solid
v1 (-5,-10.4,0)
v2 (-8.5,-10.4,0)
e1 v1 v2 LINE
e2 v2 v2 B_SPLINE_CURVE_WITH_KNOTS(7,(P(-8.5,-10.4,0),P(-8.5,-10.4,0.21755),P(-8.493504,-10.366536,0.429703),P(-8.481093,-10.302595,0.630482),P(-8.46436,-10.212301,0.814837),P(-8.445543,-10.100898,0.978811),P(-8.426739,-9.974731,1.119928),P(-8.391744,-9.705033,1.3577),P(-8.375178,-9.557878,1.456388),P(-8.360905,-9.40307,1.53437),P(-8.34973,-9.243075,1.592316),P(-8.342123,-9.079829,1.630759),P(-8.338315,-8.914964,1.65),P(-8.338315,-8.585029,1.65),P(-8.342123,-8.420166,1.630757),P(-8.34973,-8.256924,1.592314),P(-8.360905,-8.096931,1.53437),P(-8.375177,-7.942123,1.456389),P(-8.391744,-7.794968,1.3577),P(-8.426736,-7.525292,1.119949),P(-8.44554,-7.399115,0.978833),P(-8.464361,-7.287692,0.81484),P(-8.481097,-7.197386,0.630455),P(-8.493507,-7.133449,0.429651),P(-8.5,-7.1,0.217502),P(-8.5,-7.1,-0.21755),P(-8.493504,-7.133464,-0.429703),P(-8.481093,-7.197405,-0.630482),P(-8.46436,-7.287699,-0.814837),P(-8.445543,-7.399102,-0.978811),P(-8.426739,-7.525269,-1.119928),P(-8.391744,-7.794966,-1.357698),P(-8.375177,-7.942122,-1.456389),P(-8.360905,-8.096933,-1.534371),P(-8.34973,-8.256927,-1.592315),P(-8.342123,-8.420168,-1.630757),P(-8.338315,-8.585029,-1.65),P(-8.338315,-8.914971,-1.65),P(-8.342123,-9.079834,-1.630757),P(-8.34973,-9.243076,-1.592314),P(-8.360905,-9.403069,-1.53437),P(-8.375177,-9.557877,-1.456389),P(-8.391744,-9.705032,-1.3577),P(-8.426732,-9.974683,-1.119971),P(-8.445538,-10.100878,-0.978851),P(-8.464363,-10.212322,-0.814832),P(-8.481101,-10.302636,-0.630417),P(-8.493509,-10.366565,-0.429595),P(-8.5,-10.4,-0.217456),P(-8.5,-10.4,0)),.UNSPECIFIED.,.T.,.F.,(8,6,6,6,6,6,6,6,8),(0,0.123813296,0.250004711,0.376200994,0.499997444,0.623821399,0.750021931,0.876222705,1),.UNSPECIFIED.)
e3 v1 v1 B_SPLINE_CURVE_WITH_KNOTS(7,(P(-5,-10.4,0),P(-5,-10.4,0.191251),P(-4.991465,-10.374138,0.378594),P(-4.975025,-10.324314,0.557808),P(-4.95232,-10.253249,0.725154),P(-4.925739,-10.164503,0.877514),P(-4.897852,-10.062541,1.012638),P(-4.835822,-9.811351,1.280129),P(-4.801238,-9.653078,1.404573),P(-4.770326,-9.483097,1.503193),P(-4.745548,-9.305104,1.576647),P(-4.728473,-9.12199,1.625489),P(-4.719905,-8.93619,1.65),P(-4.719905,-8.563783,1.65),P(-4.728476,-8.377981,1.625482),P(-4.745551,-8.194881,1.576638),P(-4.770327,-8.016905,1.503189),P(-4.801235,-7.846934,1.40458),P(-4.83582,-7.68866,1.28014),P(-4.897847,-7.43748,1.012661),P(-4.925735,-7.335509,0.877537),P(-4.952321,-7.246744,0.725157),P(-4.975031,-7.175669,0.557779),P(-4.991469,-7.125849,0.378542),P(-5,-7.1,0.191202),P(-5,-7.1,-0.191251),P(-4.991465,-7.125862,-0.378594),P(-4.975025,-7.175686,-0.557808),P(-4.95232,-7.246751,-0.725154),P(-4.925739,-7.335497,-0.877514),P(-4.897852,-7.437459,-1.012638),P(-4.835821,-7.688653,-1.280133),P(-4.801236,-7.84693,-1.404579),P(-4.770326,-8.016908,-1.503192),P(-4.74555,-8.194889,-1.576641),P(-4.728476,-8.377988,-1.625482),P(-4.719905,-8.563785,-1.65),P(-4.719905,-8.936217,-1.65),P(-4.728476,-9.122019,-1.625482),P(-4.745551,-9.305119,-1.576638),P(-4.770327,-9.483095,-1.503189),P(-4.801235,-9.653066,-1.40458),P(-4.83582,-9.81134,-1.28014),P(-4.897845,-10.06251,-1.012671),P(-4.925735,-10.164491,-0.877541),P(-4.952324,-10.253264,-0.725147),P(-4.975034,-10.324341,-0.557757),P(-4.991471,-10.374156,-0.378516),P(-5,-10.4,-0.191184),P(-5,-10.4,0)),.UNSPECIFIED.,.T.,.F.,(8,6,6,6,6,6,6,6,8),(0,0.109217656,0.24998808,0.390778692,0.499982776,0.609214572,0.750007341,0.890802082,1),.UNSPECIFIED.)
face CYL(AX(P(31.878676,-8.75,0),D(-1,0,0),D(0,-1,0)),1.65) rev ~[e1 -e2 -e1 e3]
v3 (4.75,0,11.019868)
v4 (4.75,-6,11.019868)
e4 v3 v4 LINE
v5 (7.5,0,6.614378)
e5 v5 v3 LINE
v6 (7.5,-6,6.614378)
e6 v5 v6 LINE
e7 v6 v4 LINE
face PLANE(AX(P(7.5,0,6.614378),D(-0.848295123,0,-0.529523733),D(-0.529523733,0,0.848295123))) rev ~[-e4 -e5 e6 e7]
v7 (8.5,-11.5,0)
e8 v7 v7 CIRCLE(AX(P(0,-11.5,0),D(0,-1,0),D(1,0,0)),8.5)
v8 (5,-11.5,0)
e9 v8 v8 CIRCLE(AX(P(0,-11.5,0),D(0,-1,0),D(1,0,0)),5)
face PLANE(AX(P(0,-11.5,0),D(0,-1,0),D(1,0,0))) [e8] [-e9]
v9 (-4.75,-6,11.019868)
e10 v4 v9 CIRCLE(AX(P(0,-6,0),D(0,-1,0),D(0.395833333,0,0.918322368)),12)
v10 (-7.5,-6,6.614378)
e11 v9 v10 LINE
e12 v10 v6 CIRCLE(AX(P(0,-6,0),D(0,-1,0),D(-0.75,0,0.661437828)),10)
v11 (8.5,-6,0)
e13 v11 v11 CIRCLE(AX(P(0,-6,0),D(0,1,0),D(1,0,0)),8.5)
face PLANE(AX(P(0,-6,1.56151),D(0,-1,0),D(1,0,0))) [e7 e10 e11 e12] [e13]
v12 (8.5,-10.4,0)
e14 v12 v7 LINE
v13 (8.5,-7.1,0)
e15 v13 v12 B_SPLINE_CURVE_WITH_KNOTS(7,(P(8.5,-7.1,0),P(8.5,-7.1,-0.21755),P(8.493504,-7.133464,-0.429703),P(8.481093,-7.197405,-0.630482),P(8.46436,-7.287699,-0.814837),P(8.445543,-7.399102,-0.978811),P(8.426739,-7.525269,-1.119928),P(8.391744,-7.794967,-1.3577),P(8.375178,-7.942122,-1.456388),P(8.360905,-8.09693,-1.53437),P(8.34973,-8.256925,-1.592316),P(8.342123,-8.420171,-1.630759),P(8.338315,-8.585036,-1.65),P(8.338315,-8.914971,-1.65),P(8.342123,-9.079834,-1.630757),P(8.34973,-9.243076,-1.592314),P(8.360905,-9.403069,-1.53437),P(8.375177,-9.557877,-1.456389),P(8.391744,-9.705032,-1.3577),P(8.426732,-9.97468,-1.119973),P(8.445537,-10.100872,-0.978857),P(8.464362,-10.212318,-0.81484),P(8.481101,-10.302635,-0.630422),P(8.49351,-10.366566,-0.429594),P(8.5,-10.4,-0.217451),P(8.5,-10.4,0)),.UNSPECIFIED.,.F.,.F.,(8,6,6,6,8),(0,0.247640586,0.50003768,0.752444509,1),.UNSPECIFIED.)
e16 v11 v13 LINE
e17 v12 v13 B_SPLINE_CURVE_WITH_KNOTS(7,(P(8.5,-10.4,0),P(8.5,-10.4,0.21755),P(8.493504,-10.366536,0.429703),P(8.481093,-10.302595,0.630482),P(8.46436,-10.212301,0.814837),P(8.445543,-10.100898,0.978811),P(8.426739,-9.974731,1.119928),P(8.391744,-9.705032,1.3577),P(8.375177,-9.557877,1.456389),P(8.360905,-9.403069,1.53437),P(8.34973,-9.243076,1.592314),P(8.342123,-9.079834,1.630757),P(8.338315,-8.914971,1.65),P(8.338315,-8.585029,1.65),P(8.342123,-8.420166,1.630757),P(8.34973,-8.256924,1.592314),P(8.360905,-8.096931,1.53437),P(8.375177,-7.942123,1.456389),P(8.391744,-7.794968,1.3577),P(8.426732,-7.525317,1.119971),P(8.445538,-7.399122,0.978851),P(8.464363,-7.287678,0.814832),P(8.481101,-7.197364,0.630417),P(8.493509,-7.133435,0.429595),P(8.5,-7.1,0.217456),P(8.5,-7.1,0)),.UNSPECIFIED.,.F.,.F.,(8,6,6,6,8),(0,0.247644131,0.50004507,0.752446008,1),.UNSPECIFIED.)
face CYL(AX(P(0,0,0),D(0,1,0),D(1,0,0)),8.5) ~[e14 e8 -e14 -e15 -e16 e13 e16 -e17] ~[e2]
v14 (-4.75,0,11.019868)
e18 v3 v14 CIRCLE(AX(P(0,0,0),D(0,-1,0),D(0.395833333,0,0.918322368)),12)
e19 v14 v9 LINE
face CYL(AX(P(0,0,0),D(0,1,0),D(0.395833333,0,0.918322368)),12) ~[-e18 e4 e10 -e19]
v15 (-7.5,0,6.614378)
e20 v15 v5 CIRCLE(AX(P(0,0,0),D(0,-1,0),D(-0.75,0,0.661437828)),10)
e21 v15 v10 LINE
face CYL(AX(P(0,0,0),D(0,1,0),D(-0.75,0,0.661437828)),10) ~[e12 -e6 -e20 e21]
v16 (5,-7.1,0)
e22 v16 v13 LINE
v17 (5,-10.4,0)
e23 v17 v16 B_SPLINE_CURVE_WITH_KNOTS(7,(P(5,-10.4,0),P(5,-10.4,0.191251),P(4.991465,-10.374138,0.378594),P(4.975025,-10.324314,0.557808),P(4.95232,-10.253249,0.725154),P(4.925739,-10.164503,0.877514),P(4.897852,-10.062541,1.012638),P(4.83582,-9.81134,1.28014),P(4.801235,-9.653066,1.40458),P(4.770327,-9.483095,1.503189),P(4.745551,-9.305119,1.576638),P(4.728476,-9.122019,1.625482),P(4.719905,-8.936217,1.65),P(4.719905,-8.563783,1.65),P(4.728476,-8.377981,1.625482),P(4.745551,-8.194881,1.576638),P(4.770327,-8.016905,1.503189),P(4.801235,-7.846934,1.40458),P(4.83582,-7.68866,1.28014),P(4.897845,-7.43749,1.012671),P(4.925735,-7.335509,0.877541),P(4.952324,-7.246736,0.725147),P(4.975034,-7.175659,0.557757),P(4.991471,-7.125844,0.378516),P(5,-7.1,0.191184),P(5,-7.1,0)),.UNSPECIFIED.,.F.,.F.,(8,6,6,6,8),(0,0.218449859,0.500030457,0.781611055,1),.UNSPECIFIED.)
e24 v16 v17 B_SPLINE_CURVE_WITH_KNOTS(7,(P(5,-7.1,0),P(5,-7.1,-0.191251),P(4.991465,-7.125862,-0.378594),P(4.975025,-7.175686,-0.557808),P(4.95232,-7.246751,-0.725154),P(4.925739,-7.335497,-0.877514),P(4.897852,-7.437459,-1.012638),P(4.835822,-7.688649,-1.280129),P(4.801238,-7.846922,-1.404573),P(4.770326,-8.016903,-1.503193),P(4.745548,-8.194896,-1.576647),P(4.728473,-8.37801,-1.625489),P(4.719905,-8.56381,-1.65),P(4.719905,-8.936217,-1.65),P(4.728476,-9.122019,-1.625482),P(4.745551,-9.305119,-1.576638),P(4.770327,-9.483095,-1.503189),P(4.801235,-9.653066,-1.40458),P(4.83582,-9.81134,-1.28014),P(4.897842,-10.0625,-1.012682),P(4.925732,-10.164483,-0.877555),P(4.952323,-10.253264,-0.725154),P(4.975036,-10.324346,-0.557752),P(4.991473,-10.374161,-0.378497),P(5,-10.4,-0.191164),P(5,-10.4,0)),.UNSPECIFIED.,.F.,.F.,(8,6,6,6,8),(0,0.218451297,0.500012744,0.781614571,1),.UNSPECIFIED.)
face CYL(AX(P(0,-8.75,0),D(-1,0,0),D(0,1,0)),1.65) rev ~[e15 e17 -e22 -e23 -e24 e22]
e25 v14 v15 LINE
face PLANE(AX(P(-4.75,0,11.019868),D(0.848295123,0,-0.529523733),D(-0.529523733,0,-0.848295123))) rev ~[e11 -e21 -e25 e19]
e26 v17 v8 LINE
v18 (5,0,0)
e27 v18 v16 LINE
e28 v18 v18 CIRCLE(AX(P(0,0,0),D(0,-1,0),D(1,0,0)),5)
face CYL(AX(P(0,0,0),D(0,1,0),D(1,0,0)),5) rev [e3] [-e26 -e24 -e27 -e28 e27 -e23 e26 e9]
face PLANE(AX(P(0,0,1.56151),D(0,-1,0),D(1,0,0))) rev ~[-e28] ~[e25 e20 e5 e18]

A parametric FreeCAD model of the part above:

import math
import FreeCAD as App
import Part
import Sketcher
from FreeCAD import Vector
Q = App.Units.Quantity

doc = App.newDocument("Part")
body = doc.addObject("PartDesign::Body", "Body")

# Sketch on XZ plane
sketch1 = body.newObject("Sketcher::SketchObject", "Sketch")
sketch1.AttachmentSupport = (doc.getObject("XZ_Plane"), [""])
sketch1.MapMode = "FlatFace"
sketch1.addGeometry(Part.LineSegment(Vector(-5, 11, 0), Vector(-8, 7, 0)), False)
sketch1.addGeometry(Part.ArcOfCircle(Part.Circle(Vector(0, 0, 0), Vector(0, 0, 1), 10), math.radians(139), math.radians(401)), False)
sketch1.addGeometry(Part.LineSegment(Vector(8, 7, 0), Vector(5, 11, 0)), False)
sketch1.addGeometry(Part.ArcOfCircle(Part.Circle(Vector(0, 0, 0), Vector(0, 0, 1), 12), math.radians(67), math.radians(113)), False)
sketch1.addGeometry(Part.Circle(Vector(0, 0, 0), Vector(0, 0, 1), 5), False)
sketch1.addConstraint(Sketcher.Constraint("Coincident", 0, 2, 1, 1))
sketch1.addConstraint(Sketcher.Constraint("Coincident", 1, 2, 2, 1))
sketch1.addConstraint(Sketcher.Constraint("Coincident", 2, 2, 3, 1))
sketch1.addConstraint(Sketcher.Constraint("Coincident", 3, 2, 0, 1))
sketch1.addConstraint(Sketcher.Constraint("Coincident", 1, 3, -1, 1))
sketch1.addConstraint(Sketcher.Constraint("Coincident", 3, 3, -1, 1))
sketch1.addConstraint(Sketcher.Constraint("Coincident", 4, 3, -1, 1))
sketch1.addConstraint(Sketcher.Constraint("Horizontal", 0, 2, 1, 2))
sketch1.addConstraint(Sketcher.Constraint("Horizontal", 2, 2, 3, 2))
sketch1.addConstraint(Sketcher.Constraint("Diameter", 4, Q("10 mm")))
sketch1.addConstraint(Sketcher.Constraint("Radius", 1, Q("10 mm")))
sketch1.addConstraint(Sketcher.Constraint("Radius", 3, Q("12 mm")))
sketch1.addConstraint(Sketcher.Constraint("DistanceX", 0, 2, 1, 2, Q("15 mm")))
sketch1.addConstraint(Sketcher.Constraint("DistanceX", 3, 2, 2, 2, Q("9.5 mm")))
pad1 = body.newObject("PartDesign::Pad", "Pad")
pad1.Profile = sketch1
pad1.Length = 6

# Sketch on XZ plane
sketch2 = body.newObject("Sketcher::SketchObject", "Sketch001")
sketch2.AttachmentSupport = (doc.getObject("XZ_Plane"), [""])
sketch2.MapMode = "FlatFace"
sketch2.addGeometry(Part.Circle(Vector(0, 0, 0), Vector(0, 0, 1), 8), False)
sketch2.addGeometry(Part.Circle(Vector(0, 0, 0), Vector(0, 0, 1), 5), False)
sketch2.addConstraint(Sketcher.Constraint("Coincident", 0, 3, -1, 1))
sketch2.addConstraint(Sketcher.Constraint("Coincident", 1, 3, -1, 1))
sketch2.addConstraint(Sketcher.Constraint("Diameter", 0, Q("17 mm")))
sketch2.addConstraint(Sketcher.Constraint("Diameter", 1, Q("10 mm")))
pad2 = body.newObject("PartDesign::Pad", "Pad001")
pad2.Profile = sketch2
pad2.Length = 11.5

# Sketch on YZ plane
sketch3 = body.newObject("Sketcher::SketchObject", "Sketch002")
sketch3.AttachmentSupport = (doc.getObject("YZ_Plane"), [""])
sketch3.MapMode = "FlatFace"
sketch3.addGeometry(Part.Circle(Vector(-8.8, 0, 0), Vector(0, 0, 1), 1.6), False)
sketch3.addConstraint(Sketcher.Constraint("PointOnObject", 0, 3, -1))
sketch3.addConstraint(Sketcher.Constraint("Diameter", 0, Q("3.3 mm")))
sketch3.addConstraint(Sketcher.Constraint("DistanceX", 0, 3, -1, 1, Q("8.75 mm")))
pocket1 = body.newObject("PartDesign::Pocket", "Pocket")
pocket1.Profile = sketch3
pocket1.Type = "ThroughAll"
pocket1.Reversed = True

# Sketch on YZ plane
sketch4 = body.newObject("Sketcher::SketchObject", "Sketch003")
sketch4.AttachmentSupport = (doc.getObject("YZ_Plane"), [""])
sketch4.MapMode = "FlatFace"
sketch4.addGeometry(Part.Circle(Vector(-8.8, 0, 0), Vector(0, 0, 1), 1.6), False)
sketch4.addConstraint(Sketcher.Constraint("PointOnObject", 0, 3, -1))
sketch4.addConstraint(Sketcher.Constraint("Diameter", 0, Q("3.3 mm")))
sketch4.addConstraint(Sketcher.Constraint("DistanceX", 0, 3, -1, 1, Q("8.75 mm")))
doc.recompute()
hole = body.newObject("PartDesign::Hole", "Hole")
hole.Profile = sketch4
hole.ThreadType = "None"
hole.Diameter = 3.3
hole.DepthType = "ThroughAll"

doc.recompute()
